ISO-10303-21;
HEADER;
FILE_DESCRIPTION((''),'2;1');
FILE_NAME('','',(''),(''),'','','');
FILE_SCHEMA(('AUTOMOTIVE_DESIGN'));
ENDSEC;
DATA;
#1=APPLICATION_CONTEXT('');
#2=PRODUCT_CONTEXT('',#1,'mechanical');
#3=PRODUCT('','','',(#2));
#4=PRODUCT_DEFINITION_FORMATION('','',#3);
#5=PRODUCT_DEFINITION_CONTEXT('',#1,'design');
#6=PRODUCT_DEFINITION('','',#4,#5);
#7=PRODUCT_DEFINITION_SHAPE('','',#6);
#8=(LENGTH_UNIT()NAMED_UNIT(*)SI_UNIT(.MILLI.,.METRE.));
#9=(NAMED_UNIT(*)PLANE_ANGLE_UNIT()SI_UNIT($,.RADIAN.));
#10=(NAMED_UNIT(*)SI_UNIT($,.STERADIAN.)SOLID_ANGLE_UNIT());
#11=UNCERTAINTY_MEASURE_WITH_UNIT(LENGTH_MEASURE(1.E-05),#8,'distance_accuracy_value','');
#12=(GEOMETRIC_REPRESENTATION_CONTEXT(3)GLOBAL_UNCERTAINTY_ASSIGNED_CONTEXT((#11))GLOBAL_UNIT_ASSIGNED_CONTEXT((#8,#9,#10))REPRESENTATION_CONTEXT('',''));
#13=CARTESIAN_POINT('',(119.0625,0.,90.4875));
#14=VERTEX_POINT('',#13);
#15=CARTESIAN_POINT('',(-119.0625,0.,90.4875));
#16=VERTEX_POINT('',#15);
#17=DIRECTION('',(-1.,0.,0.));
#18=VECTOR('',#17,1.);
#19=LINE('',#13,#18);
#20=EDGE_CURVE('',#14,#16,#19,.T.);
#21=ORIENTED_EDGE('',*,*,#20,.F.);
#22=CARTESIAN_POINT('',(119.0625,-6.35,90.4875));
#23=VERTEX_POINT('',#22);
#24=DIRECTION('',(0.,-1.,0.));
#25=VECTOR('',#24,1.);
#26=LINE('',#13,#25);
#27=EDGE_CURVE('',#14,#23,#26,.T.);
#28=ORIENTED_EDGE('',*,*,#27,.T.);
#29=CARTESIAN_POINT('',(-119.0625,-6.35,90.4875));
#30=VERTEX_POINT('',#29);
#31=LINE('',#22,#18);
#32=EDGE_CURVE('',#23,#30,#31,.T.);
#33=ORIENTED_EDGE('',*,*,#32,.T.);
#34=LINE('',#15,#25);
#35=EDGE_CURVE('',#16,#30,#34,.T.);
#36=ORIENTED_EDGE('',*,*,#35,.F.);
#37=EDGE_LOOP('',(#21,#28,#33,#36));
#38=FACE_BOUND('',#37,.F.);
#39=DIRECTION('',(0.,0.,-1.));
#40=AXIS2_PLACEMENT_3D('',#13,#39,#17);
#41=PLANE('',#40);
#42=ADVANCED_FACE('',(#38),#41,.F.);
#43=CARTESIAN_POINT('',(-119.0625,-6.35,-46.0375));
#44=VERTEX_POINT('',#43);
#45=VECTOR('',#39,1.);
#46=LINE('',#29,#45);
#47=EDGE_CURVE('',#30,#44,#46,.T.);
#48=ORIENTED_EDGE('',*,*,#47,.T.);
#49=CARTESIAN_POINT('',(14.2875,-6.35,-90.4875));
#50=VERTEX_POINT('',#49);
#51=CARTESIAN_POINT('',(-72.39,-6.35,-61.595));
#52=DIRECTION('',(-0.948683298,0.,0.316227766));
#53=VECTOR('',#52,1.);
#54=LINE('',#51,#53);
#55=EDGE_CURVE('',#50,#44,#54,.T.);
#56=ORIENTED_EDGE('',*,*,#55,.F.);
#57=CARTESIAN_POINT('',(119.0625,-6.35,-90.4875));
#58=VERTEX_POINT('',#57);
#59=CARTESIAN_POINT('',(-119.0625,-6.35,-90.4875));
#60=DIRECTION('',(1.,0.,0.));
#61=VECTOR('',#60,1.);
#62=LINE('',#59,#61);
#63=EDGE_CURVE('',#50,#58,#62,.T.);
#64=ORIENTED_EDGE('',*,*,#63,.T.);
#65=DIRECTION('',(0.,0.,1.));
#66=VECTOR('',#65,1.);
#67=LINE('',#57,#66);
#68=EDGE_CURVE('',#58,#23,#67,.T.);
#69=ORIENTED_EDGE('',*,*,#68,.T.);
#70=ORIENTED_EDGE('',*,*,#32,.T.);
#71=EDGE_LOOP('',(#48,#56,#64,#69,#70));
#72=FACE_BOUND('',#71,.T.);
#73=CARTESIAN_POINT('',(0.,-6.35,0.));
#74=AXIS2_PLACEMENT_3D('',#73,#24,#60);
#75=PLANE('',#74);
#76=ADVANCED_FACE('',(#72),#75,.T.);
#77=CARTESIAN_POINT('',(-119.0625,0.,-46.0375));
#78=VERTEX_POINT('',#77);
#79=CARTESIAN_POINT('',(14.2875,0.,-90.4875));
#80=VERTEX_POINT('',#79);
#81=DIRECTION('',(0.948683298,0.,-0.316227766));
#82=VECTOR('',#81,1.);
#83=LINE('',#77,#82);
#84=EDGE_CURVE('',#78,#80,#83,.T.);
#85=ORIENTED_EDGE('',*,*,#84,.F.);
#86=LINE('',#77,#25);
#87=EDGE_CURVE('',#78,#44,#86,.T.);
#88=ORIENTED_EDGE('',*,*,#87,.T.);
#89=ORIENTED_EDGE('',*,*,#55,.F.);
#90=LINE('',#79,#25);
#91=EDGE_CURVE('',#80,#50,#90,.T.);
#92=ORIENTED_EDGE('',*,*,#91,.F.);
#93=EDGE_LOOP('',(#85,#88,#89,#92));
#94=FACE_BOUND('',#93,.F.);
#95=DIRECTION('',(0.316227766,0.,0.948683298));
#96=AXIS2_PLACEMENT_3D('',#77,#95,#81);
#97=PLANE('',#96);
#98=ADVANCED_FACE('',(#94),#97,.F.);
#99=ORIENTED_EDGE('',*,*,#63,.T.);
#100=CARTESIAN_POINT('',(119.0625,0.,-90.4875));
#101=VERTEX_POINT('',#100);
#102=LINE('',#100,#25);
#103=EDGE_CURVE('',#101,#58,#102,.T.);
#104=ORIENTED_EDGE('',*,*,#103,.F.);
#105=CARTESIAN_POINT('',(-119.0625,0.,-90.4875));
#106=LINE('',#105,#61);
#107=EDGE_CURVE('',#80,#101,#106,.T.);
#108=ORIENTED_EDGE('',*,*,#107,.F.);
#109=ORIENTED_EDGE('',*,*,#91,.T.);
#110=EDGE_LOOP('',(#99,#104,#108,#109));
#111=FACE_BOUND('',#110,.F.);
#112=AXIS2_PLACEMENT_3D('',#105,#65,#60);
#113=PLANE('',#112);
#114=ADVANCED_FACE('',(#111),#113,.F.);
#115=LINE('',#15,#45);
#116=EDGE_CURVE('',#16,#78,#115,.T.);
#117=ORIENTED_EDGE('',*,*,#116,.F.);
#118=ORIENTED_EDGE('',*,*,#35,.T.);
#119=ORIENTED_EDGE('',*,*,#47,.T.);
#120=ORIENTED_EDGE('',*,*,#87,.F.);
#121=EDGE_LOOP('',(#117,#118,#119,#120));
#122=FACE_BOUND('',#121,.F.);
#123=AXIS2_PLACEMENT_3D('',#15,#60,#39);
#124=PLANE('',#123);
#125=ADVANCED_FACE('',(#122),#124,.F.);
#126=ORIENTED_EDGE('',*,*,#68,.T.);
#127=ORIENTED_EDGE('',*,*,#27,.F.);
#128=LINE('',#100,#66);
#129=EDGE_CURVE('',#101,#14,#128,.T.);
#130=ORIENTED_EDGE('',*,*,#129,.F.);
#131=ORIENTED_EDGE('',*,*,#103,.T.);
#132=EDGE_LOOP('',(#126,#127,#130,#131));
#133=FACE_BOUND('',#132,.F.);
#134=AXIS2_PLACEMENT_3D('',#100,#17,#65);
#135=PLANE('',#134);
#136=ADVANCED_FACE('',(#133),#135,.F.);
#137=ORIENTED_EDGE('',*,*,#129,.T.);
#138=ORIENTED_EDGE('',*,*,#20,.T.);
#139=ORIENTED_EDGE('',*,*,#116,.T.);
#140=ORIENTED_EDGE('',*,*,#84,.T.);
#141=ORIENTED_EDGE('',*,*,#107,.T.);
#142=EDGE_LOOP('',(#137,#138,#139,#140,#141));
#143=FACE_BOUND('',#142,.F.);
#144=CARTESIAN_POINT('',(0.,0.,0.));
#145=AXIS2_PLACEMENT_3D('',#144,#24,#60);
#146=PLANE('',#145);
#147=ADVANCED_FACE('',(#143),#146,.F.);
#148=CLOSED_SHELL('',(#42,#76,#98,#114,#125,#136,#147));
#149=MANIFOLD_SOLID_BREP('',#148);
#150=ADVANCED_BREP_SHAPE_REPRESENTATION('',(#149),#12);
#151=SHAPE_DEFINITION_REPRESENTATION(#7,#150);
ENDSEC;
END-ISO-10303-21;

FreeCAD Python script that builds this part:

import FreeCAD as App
import Part
import Sketcher

V = App.Vector
Q = App.Units.Quantity


def add_polygon(sketch, points):
    """Adds a closed chain of lines whose ends are joined by coincident constraints."""
    first, n = sketch.GeometryCount, len(points)
    for a, b in zip(points, points[1:] + points[:1]):
        sketch.addGeometry(Part.LineSegment(App.Vector(*a, 0), App.Vector(*b, 0)), False)
    for i in range(n):
        sketch.addConstraint(Sketcher.Constraint("Coincident", first + i, 2, first + (i + 1) % n, 1))

doc = App.newDocument("Part")
params = doc.addObject("Spreadsheet::Sheet", "Params")
for row, (alias, value) in enumerate([
    ("sketch1_width", "9.375 in"),
    ("sketch1_height", "7.125 in"),
    ("pad1_length", "0.25 in"),
    ("sketch2_width", "5.25 in"),
    ("sketch2_height", "1.75 in"),
    ("pocket1_length", "1 in"),
], start=1):
    params.set(f"A{row}", alias)
    params.set(f"B{row}", "=" + value)
    params.setAlias(f"B{row}", alias)

body = doc.addObject("PartDesign::Body", "Body")

sketch1 = body.newObject("Sketcher::SketchObject", "Sketch")
sketch1.AttachmentSupport = (doc.getObject("XZ_Plane"), [""])
sketch1.MapMode = "FlatFace"
add_polygon(sketch1, [(119.0625, -90.4875), (119.0625, 90.4875), (-119.0625, 90.4875), (-119.0625, -90.4875)])
sketch1.addConstraint([
    Sketcher.Constraint("Vertical", 0),
    Sketcher.Constraint("Horizontal", 1),
    Sketcher.Constraint("Vertical", 2),
    Sketcher.Constraint("Horizontal", 3),
    Sketcher.Constraint("Symmetric", 0, 2, 2, 2, -1, 1),
    Sketcher.Constraint("DistanceX", 1, 2, 1, 1, Q("9.375 in")),
    Sketcher.Constraint("DistanceY", 0, 1, 0, 2, Q("7.125 in")),
])
sketch1.setExpression("Constraints[9]", "Params.sketch1_width")
sketch1.setExpression("Constraints[10]", "Params.sketch1_height")
pad1 = body.newObject("PartDesign::Pad", "Pad")
pad1.Profile = sketch1
pad1.setExpression("Length", "Params.pad1_length")

sketch2 = body.newObject("Sketcher::SketchObject", "Sketch001")
sketch2.AttachmentSupport = (doc.getObject("XZ_Plane"), [""])
sketch2.MapMode = "FlatFace"
add_polygon(sketch2, [(14.2875, -90.4875), (-119.0625, -90.4875), (-119.0625, -46.0375)])
sketch2.addConstraint([
    Sketcher.Constraint("Horizontal", 0),
    Sketcher.Constraint("Vertical", 1),
    Sketcher.Constraint("DistanceX", 0, 2, 0, 1, Q("5.25 in")),
    Sketcher.Constraint("DistanceY", 1, 1, 1, 2, Q("1.75 in")),
    Sketcher.Constraint("DistanceX", 0, 2, -1, 1, Q("4.6875 in")),
    Sketcher.Constraint("DistanceY", 0, 2, -1, 1, Q("3.5625 in")),
])
sketch2.setExpression("Constraints[5]", "Params.sketch2_width")
sketch2.setExpression("Constraints[6]", "Params.sketch2_height")
pocket1 = body.newObject("PartDesign::Pocket", "Pocket")
pocket1.Profile = sketch2
pocket1.setExpression("Length", "Params.pocket1_length")
pocket1.Reversed = True

doc.recompute()
